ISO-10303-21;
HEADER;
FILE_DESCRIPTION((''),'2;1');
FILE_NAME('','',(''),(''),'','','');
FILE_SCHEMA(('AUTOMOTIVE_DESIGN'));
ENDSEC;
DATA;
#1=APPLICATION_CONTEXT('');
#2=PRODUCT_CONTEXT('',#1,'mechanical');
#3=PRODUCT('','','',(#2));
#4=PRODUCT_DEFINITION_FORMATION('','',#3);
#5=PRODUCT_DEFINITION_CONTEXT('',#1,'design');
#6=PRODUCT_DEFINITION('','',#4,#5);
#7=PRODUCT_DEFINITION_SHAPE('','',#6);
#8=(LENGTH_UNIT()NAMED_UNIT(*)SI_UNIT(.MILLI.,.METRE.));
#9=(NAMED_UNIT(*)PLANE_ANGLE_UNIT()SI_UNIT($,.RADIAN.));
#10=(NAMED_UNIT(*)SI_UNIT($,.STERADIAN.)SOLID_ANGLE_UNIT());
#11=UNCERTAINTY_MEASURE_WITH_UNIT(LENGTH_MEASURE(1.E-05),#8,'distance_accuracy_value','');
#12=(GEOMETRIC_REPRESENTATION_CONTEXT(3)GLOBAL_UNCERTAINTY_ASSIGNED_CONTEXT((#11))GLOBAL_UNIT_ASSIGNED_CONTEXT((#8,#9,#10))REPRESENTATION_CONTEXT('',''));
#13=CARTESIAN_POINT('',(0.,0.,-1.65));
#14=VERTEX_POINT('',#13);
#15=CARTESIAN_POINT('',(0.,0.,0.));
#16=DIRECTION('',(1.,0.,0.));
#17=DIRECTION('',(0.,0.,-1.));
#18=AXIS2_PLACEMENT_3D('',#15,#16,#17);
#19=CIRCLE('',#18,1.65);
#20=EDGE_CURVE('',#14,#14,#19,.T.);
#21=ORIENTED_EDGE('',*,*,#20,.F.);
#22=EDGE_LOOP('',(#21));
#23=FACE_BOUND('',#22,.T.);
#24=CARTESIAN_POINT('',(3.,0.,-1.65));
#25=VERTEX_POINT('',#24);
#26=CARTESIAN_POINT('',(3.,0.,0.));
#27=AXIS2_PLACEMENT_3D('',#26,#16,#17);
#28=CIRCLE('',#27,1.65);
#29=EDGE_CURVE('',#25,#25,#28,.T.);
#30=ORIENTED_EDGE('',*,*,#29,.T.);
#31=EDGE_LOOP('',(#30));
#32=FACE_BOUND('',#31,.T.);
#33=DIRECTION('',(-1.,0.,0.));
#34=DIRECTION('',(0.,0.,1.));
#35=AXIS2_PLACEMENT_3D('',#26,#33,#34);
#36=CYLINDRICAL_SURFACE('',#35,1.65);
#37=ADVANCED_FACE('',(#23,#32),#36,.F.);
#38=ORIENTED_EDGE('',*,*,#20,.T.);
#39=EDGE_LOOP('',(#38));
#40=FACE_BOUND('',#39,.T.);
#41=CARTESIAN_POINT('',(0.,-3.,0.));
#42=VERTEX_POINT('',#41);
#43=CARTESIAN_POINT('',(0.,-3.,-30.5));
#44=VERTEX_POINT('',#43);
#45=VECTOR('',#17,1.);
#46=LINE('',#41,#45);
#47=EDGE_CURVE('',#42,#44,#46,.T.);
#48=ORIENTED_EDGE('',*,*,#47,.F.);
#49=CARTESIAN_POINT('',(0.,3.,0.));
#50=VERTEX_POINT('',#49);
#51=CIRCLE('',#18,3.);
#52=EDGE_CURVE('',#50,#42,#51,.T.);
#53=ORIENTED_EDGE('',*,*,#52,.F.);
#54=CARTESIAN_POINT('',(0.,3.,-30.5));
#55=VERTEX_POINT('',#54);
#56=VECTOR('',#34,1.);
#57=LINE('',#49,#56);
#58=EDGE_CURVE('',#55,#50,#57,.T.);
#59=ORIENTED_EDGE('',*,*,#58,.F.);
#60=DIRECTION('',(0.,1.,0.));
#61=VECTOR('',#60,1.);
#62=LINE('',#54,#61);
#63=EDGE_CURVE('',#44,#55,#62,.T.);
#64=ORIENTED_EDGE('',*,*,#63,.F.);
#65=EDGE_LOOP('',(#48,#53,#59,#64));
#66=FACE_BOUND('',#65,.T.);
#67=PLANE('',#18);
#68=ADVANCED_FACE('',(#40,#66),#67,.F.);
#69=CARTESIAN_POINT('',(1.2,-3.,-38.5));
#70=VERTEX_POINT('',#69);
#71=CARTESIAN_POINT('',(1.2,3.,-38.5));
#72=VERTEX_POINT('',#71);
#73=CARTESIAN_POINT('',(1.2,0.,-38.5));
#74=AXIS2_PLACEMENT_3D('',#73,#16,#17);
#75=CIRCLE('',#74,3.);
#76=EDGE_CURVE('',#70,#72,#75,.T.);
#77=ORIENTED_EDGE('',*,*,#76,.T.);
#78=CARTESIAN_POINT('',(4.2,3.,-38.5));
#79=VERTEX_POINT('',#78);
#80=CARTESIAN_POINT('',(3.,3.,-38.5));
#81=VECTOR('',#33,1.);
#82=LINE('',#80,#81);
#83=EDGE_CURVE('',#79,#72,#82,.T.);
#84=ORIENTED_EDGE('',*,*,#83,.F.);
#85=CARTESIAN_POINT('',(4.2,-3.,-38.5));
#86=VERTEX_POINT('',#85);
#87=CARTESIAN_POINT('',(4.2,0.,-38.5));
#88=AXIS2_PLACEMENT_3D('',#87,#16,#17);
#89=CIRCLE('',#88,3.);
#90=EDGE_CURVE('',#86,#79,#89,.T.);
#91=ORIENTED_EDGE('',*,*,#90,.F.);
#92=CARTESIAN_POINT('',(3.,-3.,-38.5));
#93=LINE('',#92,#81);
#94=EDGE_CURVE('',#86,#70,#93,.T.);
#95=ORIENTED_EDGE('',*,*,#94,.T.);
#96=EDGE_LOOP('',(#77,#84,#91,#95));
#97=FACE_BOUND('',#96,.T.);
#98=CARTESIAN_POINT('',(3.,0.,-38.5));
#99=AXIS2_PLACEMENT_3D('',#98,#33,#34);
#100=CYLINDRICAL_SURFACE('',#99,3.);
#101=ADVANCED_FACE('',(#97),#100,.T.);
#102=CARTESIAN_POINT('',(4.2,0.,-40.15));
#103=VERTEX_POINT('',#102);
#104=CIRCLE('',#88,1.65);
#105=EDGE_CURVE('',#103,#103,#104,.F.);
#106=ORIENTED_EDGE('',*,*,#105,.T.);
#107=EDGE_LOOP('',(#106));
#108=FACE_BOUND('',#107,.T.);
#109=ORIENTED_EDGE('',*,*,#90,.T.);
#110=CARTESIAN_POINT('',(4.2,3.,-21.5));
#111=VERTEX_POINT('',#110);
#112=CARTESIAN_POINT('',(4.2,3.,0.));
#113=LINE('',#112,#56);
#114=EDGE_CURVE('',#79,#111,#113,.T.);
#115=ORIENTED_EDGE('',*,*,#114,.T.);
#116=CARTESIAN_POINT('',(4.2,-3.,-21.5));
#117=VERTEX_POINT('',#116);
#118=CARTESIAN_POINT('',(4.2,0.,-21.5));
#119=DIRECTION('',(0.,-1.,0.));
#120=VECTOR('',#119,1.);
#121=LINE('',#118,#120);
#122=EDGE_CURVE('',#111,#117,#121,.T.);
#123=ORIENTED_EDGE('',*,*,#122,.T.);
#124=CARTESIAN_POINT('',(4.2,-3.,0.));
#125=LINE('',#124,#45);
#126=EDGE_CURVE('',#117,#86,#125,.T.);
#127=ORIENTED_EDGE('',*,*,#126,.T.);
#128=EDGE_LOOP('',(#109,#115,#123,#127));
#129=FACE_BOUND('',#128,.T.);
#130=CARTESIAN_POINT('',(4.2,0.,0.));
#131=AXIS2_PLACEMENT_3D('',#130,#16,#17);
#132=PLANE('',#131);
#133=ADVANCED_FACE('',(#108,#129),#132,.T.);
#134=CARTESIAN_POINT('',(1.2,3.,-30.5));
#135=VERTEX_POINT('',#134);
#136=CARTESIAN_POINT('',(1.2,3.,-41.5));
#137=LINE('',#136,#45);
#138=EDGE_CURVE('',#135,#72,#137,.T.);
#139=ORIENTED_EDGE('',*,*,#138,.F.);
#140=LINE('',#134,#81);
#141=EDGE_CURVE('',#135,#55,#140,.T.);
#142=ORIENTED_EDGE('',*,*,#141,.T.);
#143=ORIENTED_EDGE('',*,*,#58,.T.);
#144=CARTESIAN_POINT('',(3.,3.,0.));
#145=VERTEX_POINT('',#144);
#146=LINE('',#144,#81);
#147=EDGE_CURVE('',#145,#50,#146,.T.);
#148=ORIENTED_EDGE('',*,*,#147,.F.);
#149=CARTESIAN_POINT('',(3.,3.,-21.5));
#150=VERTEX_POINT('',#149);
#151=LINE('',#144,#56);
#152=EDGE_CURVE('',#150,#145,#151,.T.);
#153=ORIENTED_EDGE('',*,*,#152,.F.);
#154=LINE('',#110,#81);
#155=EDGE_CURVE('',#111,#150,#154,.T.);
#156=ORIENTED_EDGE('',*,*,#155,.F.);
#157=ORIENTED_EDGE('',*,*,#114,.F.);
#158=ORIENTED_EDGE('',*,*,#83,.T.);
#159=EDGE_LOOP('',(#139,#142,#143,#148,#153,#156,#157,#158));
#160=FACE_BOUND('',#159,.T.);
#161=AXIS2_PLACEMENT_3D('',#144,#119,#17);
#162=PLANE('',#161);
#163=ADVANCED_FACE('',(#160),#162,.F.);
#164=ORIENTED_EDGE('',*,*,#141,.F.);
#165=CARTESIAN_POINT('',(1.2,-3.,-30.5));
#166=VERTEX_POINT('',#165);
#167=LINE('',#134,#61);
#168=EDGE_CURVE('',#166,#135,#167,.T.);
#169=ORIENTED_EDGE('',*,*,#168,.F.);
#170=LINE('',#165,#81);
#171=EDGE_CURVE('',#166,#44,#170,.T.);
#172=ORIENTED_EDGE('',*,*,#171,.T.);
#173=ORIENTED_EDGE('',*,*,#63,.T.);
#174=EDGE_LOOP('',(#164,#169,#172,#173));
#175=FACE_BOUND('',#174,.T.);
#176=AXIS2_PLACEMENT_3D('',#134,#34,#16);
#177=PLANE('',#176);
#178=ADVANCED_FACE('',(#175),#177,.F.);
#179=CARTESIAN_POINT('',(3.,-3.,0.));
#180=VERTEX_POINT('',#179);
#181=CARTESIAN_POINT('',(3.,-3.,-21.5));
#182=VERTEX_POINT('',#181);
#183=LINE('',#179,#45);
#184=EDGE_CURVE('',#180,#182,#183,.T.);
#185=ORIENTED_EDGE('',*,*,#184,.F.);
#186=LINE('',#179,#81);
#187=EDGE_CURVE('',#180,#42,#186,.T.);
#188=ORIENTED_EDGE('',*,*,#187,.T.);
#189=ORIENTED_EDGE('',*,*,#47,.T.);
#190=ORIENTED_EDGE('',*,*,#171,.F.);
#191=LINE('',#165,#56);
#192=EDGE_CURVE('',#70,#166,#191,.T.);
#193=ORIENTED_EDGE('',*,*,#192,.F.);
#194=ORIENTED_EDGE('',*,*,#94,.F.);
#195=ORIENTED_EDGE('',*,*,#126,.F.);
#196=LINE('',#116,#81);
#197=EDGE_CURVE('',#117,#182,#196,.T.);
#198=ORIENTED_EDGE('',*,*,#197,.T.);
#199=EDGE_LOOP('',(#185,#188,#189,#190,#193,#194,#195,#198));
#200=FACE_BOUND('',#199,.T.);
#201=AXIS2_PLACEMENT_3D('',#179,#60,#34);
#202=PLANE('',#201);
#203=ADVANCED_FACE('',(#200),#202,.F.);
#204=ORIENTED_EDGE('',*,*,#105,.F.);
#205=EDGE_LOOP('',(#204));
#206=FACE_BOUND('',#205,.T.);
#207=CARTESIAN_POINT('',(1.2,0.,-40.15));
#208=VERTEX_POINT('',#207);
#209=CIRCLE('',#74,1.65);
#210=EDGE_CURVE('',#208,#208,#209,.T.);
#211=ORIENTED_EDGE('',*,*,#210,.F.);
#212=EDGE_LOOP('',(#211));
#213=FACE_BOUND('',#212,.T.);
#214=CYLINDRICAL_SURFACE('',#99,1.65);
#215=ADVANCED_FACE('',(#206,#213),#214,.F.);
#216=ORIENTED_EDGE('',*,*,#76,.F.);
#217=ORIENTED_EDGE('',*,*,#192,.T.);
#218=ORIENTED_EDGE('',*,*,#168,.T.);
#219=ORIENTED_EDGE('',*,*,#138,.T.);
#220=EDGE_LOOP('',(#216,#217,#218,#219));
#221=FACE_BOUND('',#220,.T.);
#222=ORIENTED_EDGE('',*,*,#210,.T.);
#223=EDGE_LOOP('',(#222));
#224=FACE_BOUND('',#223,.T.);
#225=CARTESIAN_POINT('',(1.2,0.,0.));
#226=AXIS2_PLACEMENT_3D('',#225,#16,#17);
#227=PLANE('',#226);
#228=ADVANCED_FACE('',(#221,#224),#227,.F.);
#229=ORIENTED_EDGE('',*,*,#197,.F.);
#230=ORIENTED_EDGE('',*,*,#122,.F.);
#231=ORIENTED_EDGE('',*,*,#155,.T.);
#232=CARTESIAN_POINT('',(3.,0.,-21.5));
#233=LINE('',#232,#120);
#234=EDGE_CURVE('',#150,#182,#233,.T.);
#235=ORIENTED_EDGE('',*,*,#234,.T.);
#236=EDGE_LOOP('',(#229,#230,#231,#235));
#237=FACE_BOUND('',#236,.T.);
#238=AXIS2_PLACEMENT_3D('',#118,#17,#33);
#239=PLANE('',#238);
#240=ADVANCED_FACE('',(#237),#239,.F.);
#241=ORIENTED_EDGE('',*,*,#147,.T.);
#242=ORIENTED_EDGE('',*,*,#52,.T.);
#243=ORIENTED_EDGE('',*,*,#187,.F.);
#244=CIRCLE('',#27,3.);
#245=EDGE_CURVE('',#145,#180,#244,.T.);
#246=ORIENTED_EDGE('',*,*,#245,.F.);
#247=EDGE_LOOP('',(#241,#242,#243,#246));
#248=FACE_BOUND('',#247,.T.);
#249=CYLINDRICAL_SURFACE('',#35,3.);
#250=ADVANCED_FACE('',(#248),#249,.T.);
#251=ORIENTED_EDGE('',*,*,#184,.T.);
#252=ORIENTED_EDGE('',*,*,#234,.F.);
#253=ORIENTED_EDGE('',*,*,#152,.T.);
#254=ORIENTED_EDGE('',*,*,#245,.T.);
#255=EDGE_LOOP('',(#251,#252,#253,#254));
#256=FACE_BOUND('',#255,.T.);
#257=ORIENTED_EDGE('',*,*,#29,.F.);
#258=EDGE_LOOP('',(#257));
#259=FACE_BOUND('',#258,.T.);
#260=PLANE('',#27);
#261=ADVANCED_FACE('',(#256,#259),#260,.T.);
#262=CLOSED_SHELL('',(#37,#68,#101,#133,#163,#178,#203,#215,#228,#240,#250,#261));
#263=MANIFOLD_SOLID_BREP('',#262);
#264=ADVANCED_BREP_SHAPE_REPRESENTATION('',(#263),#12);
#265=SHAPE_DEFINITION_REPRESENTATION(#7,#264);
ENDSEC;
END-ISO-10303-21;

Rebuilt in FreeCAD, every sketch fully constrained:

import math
import FreeCAD as App
import Part
import Sketcher
from FreeCAD import Vector
Q = App.Units.Quantity

doc = App.newDocument("Part")
body = doc.addObject("PartDesign::Body", "Body")

# Sketch on YZ plane
sketch1 = doc.addObject("Sketcher::SketchObject", "Sketch")
body.addObject(sketch1)
sketch1.AttachmentSupport = (doc.YZ_Plane, [""])
sketch1.MapMode = "FlatFace"
sketch1.addGeometry(Part.LineSegment(Vector(3, -38.5, 0), Vector(3, 0, 0)), False)
sketch1.addGeometry(Part.ArcOfCircle(Part.Circle(Vector(0, 0, 0), Vector(0, 0, 1), 3), math.radians(0), math.radians(180)), False)
sketch1.addGeometry(Part.LineSegment(Vector(-3, 0, 0), Vector(-3, -38.5, 0)), False)
sketch1.addGeometry(Part.ArcOfCircle(Part.Circle(Vector(0, -38.5, 0), Vector(0, 0, 1), 3), math.radians(180), math.radians(360)), False)
sketch1.addGeometry(Part.Circle(Vector(0, -38.5, 0), Vector(0, 0, 1), 1.65), False)
sketch1.addGeometry(Part.Circle(Vector(0, 0, 0), Vector(0, 0, 1), 1.65), False)
sketch1.addConstraint(Sketcher.Constraint("Tangent", 0, 2, 1, 1))
sketch1.addConstraint(Sketcher.Constraint("Tangent", 1, 2, 2, 1))
sketch1.addConstraint(Sketcher.Constraint("Tangent", 2, 2, 3, 1))
sketch1.addConstraint(Sketcher.Constraint("Tangent", 3, 2, 0, 1))
sketch1.addConstraint(Sketcher.Constraint("Vertical", 0))
sketch1.addConstraint(Sketcher.Constraint("Vertical", 2))
sketch1.addConstraint(Sketcher.Constraint("Coincident", 1, 3, -1, 1))
sketch1.addConstraint(Sketcher.Constraint("Coincident", 5, 3, -1, 1))
sketch1.addConstraint(Sketcher.Constraint("Coincident", 4, 3, 3, 3))
sketch1.addConstraint(Sketcher.Constraint("Equal", 4, 5))
sketch1.addConstraint(Sketcher.Constraint("Radius", 1, Q("3 mm")))
sketch1.addConstraint(Sketcher.Constraint("Diameter", 4, Q("3.3 mm")))
sketch1.addConstraint(Sketcher.Constraint("DistanceY", 0, 1, 0, 2, Q("38.5 mm")))
pad1 = doc.addObject("PartDesign::Pad", "Pad")
body.addObject(pad1)
pad1.Profile = sketch1
pad1.Length = 3

# Sketch on YZ plane
sketch2 = doc.addObject("Sketcher::SketchObject", "Sketch001")
body.addObject(sketch2)
sketch2.AttachmentSupport = (doc.YZ_Plane, [""])
sketch2.MapMode = "FlatFace"
sketch2.addGeometry(Part.LineSegment(Vector(3, -41.5, 0), Vector(-3, -41.5, 0)), False)
sketch2.addGeometry(Part.LineSegment(Vector(-3, -41.5, 0), Vector(-3, -30.5, 0)), False)
sketch2.addGeometry(Part.LineSegment(Vector(-3, -30.5, 0), Vector(3, -30.5, 0)), False)
sketch2.addGeometry(Part.LineSegment(Vector(3, -30.5, 0), Vector(3, -41.5, 0)), False)
sketch2.addConstraint(Sketcher.Constraint("Coincident", 0, 2, 1, 1))
sketch2.addConstraint(Sketcher.Constraint("Coincident", 1, 2, 2, 1))
sketch2.addConstraint(Sketcher.Constraint("Coincident", 2, 2, 3, 1))
sketch2.addConstraint(Sketcher.Constraint("Coincident", 3, 2, 0, 1))
sketch2.addConstraint(Sketcher.Constraint("Horizontal", 0))
sketch2.addConstraint(Sketcher.Constraint("Vertical", 1))
sketch2.addConstraint(Sketcher.Constraint("Horizontal", 2))
sketch2.addConstraint(Sketcher.Constraint("Vertical", 3))
sketch2.addConstraint(Sketcher.Constraint("DistanceX", 0, 2, 0, 1, Q("6 mm")))
sketch2.addConstraint(Sketcher.Constraint("DistanceY", 1, 1, 1, 2, Q("11 mm")))
sketch2.addConstraint(Sketcher.Constraint("DistanceX", 0, 2, -1, 1, Q("3 mm")))
sketch2.addConstraint(Sketcher.Constraint("DistanceY", 0, 2, -1, 1, Q("41.5 mm")))
pocket1 = doc.addObject("PartDesign::Pocket", "Pocket")
body.addObject(pocket1)
pocket1.Profile = sketch2
pocket1.Length = 1.2
pocket1.Reversed = True

# Sketch on YZ plane
sketch3 = doc.addObject("Sketcher::SketchObject", "Sketch002")
body.addObject(sketch3)
sketch3.AttachmentSupport = (doc.YZ_Plane, [""])
sketch3.MapMode = "FlatFace"
sketch3.AttachmentOffset = App.Placement(Vector(0, 0, 3), App.Rotation())
sketch3.addGeometry(Part.LineSegment(Vector(3, -38.5, 0), Vector(3, -21.5, 0)), False)
sketch3.addGeometry(Part.LineSegment(Vector(3, -21.5, 0), Vector(-3, -21.5, 0)), False)
sketch3.addGeometry(Part.LineSegment(Vector(-3, -21.5, 0), Vector(-3, -38.5, 0)), False)
sketch3.addGeometry(Part.ArcOfCircle(Part.Circle(Vector(0, -38.5, 0), Vector(0, 0, 1), 3), math.radians(180), math.radians(360)), False)
sketch3.addGeometry(Part.Circle(Vector(0, -38.5, 0), Vector(0, 0, 1), 1.65), False)
sketch3.addConstraint(Sketcher.Constraint("Coincident", 0, 2, 1, 1))
sketch3.addConstraint(Sketcher.Constraint("Coincident", 1, 2, 2, 1))
sketch3.addConstraint(Sketcher.Constraint("Tangent", 2, 2, 3, 1))
sketch3.addConstraint(Sketcher.Constraint("Tangent", 3, 2, 0, 1))
sketch3.addConstraint(Sketcher.Constraint("Vertical", 0))
sketch3.addConstraint(Sketcher.Constraint("Horizontal", 1))
sketch3.addConstraint(Sketcher.Constraint("Vertical", 2))
sketch3.addConstraint(Sketcher.Constraint("Coincident", 4, 3, 3, 3))
sketch3.addConstraint(Sketcher.Constraint("PointOnObject", 3, 3, -2))
sketch3.addConstraint(Sketcher.Constraint("Radius", 3, Q("3 mm")))
sketch3.addConstraint(Sketcher.Constraint("Diameter", 4, Q("3.3 mm")))
sketch3.addConstraint(Sketcher.Constraint("DistanceY", 0, 1, 0, 2, Q("17 mm")))
sketch3.addConstraint(Sketcher.Constraint("DistanceY", 3, 3, -1, 1, Q("38.5 mm")))
pad2 = doc.addObject("PartDesign::Pad", "Pad001")
body.addObject(pad2)
pad2.Profile = sketch3
pad2.Length = 1.2

doc.recompute()
